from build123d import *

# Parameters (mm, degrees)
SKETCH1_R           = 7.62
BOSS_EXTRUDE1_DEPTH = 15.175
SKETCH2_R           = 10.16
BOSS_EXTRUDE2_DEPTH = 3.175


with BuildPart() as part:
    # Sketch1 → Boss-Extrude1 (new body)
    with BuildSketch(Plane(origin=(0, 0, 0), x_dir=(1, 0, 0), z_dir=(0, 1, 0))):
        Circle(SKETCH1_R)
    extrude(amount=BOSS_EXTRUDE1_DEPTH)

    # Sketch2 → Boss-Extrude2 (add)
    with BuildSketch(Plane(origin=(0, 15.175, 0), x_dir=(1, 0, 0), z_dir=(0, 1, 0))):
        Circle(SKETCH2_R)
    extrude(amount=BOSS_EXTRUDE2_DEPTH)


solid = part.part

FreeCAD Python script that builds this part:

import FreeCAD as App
import Part
import Sketcher
Q = App.Units.Quantity

doc = App.newDocument("Part")
body = doc.addObject("PartDesign::Body", "Body")

# Sketch on XZ plane
sketch1 = body.newObject("Sketcher::SketchObject", "Sketch")
sketch1.AttachmentSupport = (doc.getObject("XZ_Plane"), [""])
sketch1.MapMode = "FlatFace"
sketch1.addGeometry(Part.Circle(App.Vector(0, 0, 0), App.Vector(0, 0, 1), 8), False)
sketch1.addConstraint([
    Sketcher.Constraint("Coincident", 0, 3, -1, 1),
    Sketcher.Constraint("Diameter", 0, Q("0.6 in")),
])
pad1 = body.newObject("PartDesign::Pad", "Pad")
pad1.Profile = sketch1
pad1.Length = 15.175
pad1.Reversed = True

# Sketch on XZ plane
sketch2 = body.newObject("Sketcher::SketchObject", "Sketch001")
sketch2.AttachmentSupport = (doc.getObject("XZ_Plane"), [""])
sketch2.MapMode = "FlatFace"
sketch2.AttachmentOffset = App.Placement(App.Vector(0, 0, -15.175), App.Rotation())
sketch2.addGeometry(Part.Circle(App.Vector(0, 0, 0), App.Vector(0, 0, 1), 10), False)
sketch2.addConstraint([
    Sketcher.Constraint("Coincident", 0, 3, -1, 1),
    Sketcher.Constraint("Diameter", 0, Q("0.8 in")),
])
pad2 = body.newObject("PartDesign::Pad", "Pad001")
pad2.Profile = sketch2
pad2.Length = Q("0.125 in")
pad2.Reversed = True

doc.recompute()
